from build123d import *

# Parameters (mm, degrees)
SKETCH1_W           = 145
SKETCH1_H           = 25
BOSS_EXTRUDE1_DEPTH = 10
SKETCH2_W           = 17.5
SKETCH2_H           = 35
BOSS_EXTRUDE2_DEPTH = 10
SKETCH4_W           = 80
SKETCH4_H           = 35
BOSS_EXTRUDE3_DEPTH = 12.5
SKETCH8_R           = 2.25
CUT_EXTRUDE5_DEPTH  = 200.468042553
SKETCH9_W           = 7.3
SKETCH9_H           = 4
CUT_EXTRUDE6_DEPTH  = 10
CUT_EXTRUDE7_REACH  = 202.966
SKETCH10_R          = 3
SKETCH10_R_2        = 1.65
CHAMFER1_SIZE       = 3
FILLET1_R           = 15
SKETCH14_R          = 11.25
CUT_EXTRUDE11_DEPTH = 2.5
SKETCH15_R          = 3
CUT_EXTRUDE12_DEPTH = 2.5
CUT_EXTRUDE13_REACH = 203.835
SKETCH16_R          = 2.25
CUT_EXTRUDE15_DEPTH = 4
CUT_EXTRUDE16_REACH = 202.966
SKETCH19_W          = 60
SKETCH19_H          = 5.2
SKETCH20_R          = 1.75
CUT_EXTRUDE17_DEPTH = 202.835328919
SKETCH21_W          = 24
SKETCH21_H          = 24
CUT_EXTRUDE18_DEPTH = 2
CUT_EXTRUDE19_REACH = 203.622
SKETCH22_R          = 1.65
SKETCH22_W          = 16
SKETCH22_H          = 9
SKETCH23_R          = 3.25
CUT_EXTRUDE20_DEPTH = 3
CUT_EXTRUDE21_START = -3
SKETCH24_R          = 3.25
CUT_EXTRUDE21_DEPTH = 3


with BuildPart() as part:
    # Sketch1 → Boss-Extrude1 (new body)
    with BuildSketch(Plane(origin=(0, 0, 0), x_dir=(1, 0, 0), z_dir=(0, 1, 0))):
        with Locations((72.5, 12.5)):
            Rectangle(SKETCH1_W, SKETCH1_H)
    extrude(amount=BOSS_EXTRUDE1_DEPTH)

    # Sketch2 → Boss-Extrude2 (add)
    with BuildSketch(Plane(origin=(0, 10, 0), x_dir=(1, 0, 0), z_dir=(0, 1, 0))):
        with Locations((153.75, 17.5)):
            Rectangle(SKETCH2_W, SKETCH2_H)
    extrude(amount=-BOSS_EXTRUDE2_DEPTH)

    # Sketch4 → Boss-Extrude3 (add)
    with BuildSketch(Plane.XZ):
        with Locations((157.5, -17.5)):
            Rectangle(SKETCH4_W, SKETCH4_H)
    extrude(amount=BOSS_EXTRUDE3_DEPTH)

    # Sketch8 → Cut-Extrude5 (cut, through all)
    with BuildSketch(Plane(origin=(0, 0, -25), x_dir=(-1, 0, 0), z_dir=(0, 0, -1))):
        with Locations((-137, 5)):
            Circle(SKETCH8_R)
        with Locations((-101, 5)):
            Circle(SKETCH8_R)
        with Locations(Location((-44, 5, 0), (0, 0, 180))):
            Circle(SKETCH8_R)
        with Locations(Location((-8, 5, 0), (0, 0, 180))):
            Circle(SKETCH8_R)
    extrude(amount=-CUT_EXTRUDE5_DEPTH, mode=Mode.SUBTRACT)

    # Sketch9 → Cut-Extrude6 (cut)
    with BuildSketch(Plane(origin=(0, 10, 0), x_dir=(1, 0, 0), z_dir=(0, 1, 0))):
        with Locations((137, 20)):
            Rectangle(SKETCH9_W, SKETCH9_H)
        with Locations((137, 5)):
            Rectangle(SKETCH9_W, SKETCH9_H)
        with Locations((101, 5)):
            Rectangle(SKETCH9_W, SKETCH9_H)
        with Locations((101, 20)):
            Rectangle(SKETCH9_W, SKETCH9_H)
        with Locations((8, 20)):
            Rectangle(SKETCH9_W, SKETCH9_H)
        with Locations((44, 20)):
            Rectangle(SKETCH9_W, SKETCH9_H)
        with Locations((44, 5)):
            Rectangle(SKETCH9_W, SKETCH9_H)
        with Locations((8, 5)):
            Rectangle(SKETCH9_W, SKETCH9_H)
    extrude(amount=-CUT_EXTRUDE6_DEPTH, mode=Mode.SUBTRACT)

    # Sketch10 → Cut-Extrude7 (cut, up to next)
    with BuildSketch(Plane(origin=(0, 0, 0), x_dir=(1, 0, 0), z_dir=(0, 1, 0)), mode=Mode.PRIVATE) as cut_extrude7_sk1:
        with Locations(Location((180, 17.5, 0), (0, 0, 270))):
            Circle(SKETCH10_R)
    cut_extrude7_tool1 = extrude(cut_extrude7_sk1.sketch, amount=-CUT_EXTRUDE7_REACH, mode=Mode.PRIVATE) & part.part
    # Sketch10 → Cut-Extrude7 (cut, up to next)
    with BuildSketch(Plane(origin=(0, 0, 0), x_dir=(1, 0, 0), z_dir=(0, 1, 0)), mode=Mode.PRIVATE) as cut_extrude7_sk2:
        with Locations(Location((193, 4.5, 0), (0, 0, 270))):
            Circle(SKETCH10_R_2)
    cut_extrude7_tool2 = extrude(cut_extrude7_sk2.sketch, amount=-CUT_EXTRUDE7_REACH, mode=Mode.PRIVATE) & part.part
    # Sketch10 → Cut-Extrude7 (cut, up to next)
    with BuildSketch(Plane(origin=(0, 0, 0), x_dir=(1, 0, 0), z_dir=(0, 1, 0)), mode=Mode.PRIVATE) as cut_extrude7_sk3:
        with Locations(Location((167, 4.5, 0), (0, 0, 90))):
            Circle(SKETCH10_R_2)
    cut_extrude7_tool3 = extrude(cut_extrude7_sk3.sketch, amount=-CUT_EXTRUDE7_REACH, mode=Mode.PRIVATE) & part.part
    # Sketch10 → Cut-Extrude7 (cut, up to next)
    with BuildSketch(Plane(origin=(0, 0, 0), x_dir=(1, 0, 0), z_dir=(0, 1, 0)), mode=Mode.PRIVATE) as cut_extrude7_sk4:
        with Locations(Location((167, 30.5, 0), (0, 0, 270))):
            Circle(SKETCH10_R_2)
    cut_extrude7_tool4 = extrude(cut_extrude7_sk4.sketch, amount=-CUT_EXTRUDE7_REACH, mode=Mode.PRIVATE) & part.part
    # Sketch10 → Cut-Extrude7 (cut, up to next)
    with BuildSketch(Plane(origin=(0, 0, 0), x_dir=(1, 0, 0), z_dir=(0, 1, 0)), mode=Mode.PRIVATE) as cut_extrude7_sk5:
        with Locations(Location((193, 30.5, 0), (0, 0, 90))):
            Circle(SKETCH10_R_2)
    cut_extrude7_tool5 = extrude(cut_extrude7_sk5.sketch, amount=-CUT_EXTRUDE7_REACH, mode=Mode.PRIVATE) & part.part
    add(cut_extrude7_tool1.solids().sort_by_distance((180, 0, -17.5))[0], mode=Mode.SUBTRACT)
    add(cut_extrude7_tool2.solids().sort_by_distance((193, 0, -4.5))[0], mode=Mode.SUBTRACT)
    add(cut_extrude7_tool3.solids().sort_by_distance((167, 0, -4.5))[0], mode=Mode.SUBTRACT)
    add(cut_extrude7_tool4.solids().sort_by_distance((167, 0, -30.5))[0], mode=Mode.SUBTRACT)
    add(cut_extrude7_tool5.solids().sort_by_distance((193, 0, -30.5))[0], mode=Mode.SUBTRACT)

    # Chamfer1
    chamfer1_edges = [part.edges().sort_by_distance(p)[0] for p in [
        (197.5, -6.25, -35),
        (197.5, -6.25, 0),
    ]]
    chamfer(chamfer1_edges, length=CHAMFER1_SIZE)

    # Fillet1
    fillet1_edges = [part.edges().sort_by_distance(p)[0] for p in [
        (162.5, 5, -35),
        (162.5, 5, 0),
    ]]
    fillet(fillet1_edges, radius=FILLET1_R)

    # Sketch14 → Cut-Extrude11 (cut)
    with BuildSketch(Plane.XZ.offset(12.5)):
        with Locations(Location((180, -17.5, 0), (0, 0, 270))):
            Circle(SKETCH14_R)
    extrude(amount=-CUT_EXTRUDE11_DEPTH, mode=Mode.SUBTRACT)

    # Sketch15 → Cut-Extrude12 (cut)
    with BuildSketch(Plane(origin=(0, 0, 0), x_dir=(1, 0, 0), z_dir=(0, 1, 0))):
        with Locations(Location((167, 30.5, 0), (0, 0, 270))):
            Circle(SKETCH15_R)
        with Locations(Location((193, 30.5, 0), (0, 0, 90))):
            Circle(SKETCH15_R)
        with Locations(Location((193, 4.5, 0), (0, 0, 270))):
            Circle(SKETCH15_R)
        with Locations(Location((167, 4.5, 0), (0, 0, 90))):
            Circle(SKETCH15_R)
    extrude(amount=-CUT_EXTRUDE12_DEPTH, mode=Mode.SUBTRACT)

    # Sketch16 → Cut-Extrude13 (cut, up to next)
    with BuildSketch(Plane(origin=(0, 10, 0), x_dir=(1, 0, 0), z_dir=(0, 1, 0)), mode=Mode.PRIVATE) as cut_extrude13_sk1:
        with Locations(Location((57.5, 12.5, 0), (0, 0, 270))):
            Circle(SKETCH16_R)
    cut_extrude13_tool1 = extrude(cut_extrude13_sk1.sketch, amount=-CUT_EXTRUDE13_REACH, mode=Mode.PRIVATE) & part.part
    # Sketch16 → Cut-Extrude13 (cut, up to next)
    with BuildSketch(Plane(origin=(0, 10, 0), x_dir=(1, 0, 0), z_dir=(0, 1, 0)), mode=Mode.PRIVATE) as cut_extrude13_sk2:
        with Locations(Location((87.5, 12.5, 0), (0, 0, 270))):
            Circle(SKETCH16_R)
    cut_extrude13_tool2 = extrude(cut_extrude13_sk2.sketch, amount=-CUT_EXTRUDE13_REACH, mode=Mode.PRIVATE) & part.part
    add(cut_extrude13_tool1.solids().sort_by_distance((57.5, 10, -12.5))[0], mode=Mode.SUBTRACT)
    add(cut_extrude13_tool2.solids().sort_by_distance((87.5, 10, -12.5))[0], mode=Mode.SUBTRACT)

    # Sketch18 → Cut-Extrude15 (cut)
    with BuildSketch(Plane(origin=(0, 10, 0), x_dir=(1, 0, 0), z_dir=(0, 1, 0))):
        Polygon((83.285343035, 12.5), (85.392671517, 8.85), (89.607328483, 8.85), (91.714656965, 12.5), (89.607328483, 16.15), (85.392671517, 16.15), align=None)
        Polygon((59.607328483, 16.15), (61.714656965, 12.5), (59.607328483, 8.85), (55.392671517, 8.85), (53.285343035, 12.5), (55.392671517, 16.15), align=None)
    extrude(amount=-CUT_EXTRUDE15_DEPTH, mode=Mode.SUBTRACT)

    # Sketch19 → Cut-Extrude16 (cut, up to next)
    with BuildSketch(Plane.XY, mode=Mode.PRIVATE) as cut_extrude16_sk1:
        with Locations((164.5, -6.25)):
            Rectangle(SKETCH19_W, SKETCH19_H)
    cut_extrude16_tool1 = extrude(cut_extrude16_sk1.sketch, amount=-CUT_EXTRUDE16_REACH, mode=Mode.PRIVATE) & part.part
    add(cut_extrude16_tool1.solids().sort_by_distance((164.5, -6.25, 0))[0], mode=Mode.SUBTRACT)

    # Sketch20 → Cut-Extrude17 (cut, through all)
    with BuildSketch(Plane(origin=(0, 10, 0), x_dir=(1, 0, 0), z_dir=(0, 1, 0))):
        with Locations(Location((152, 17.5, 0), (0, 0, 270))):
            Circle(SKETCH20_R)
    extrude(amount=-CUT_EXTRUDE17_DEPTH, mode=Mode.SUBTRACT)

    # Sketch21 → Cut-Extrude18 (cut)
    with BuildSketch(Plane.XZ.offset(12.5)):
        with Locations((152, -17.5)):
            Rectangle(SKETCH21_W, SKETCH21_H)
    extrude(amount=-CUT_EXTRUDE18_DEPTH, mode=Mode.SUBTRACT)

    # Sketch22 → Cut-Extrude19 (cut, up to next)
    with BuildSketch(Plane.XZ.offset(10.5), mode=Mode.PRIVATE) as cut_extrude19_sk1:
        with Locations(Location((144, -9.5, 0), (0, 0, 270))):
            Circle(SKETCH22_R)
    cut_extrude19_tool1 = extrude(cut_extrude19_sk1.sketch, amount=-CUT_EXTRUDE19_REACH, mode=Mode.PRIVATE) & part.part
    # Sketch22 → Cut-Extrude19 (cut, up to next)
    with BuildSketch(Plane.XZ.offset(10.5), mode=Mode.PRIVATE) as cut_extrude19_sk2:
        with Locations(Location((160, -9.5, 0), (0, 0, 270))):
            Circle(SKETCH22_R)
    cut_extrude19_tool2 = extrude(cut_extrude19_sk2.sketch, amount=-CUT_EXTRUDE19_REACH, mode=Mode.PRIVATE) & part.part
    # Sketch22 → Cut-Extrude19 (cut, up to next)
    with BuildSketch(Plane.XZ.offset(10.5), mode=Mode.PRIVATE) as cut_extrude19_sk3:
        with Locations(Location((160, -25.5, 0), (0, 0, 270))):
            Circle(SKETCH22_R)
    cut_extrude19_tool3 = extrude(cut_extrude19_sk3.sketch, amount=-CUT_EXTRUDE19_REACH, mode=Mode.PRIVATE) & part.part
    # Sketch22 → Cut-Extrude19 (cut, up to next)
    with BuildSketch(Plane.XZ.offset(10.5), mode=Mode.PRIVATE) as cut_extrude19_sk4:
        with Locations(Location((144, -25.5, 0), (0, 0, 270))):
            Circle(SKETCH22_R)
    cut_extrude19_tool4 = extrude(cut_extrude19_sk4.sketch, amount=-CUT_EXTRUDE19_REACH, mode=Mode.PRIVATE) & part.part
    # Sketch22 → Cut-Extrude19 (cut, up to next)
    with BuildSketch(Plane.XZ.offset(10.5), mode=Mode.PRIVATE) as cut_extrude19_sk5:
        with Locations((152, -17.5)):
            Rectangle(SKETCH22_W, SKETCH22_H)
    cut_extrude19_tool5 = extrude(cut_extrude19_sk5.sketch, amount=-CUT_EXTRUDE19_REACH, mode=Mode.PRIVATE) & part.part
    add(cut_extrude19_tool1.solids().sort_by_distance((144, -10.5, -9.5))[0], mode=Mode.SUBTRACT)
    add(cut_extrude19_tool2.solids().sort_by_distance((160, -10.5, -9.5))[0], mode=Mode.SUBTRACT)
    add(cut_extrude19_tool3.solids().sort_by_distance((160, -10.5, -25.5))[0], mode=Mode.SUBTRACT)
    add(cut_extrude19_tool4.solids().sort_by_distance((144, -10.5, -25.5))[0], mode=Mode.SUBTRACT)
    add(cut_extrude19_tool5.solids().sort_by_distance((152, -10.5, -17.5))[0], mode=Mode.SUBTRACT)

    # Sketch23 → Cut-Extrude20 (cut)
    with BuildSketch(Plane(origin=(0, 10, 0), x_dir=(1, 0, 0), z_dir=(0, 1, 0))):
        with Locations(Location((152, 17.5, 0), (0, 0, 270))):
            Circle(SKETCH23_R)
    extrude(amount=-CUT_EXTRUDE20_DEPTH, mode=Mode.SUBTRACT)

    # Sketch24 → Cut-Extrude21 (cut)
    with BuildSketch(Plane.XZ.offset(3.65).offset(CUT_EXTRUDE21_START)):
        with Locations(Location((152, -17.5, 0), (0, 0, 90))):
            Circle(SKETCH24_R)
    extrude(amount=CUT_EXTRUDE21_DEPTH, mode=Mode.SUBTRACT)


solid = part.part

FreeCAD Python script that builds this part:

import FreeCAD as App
import Part
import Sketcher

V = App.Vector
Q = App.Units.Quantity


def edges_at(feature, points):
    """Names of the edges that pass closest to the given points."""
    edges = feature.Shape.Edges
    near = lambda p: min(range(len(edges)), key=lambda i: edges[i].distToShape(Part.Vertex(*p))[0])
    return sorted({f"Edge{near(p) + 1}" for p in points})


def add_polygon(sketch, points):
    """Adds a closed chain of lines whose ends are joined by coincident constraints."""
    first, n = sketch.GeometryCount, len(points)
    for a, b in zip(points, points[1:] + points[:1]):
        sketch.addGeometry(Part.LineSegment(App.Vector(*a, 0), App.Vector(*b, 0)), False)
    for i in range(n):
        sketch.addConstraint(Sketcher.Constraint("Coincident", first + i, 2, first + (i + 1) % n, 1))

doc = App.newDocument("Part")
body = doc.addObject("PartDesign::Body", "Body")

# Sketch on XZ plane
sketch1 = doc.addObject("Sketcher::SketchObject", "Sketch")
body.addObject(sketch1)
sketch1.AttachmentSupport = (doc.XZ_Plane, [""])
sketch1.MapMode = "FlatFace"
add_polygon(sketch1, [(0, -25), (0, 0), (145, 0), (145, -25)])  # lines 0-3
sketch1.addConstraint(Sketcher.Constraint("Vertical", 0))
sketch1.addConstraint(Sketcher.Constraint("Horizontal", 1))
sketch1.addConstraint(Sketcher.Constraint("Vertical", 2))
sketch1.addConstraint(Sketcher.Constraint("Horizontal", 3))
sketch1.addConstraint(Sketcher.Constraint("Coincident", 0, 2, -1, 1))
sketch1.addConstraint(Sketcher.Constraint("DistanceX", 1, 1, 1, 2, Q("145 mm")))
sketch1.addConstraint(Sketcher.Constraint("DistanceY", 0, 1, 0, 2, Q("25 mm")))
pad1 = doc.addObject("PartDesign::Pad", "Pad")
body.addObject(pad1)
pad1.Profile = sketch1
pad1.Length = 10
pad1.Reversed = True

# Sketch on XZ plane
sketch2 = doc.addObject("Sketcher::SketchObject", "Sketch001")
body.addObject(sketch2)
sketch2.AttachmentSupport = (doc.XZ_Plane, [""])
sketch2.MapMode = "FlatFace"
sketch2.AttachmentOffset = App.Placement(V(0, 0, -10), App.Rotation())
add_polygon(sketch2, [(145, -35), (145, 0), (162, 0), (162, -35)])  # lines 0-3
sketch2.addConstraint(Sketcher.Constraint("Vertical", 0))
sketch2.addConstraint(Sketcher.Constraint("Horizontal", 1))
sketch2.addConstraint(Sketcher.Constraint("Vertical", 2))
sketch2.addConstraint(Sketcher.Constraint("Horizontal", 3))
sketch2.addConstraint(Sketcher.Constraint("PointOnObject", 0, 2, -1))
sketch2.addConstraint(Sketcher.Constraint("DistanceY", 0, 1, 0, 2, Q("35 mm")))
sketch2.addConstraint(Sketcher.Constraint("DistanceX", 1, 1, 1, 2, Q("17.5 mm")))
sketch2.addConstraint(Sketcher.Constraint("DistanceX", -1, 1, 0, 2, Q("145 mm")))
pad2 = doc.addObject("PartDesign::Pad", "Pad001")
body.addObject(pad2)
pad2.Profile = sketch2
pad2.Length = 10

# Sketch on XZ plane
sketch3 = doc.addObject("Sketcher::SketchObject", "Sketch002")
body.addObject(sketch3)
sketch3.AttachmentSupport = (doc.XZ_Plane, [""])
sketch3.MapMode = "FlatFace"
add_polygon(sketch3, [(118, 0), (118, -35), (198, -35), (198, 0)])  # lines 0-3
sketch3.addConstraint(Sketcher.Constraint("Vertical", 0))
sketch3.addConstraint(Sketcher.Constraint("Horizontal", 1))
sketch3.addConstraint(Sketcher.Constraint("Vertical", 2))
sketch3.addConstraint(Sketcher.Constraint("Horizontal", 3))
sketch3.addConstraint(Sketcher.Constraint("PointOnObject", 2, 2, -1))
sketch3.addConstraint(Sketcher.Constraint("DistanceX", 1, 1, 1, 2, Q("80 mm")))
sketch3.addConstraint(Sketcher.Constraint("DistanceY", 0, 2, 0, 1, Q("35 mm")))
sketch3.addConstraint(Sketcher.Constraint("DistanceX", -1, 1, 0, 2, Q("117.5 mm")))
pad3 = doc.addObject("PartDesign::Pad", "Pad002")
body.addObject(pad3)
pad3.Profile = sketch3
pad3.Length = 12.5

# Sketch on XY plane
sketch4 = doc.addObject("Sketcher::SketchObject", "Sketch003")
body.addObject(sketch4)
sketch4.AttachmentSupport = (doc.XY_Plane, [""])
sketch4.MapMode = "FlatFace"
sketch4.AttachmentOffset = App.Placement(V(0, 0, -25), App.Rotation())
sketch4.addGeometry(Part.Circle(V(137, 5, 0), V(0, 0, 1), 2.2), False)
sketch4.addGeometry(Part.Circle(V(101, 5, 0), V(0, 0, 1), 2.2), False)
sketch4.addGeometry(Part.Circle(V(44, 5, 0), V(0, 0, 1), 2.2), False)
sketch4.addGeometry(Part.Circle(V(8, 5, 0), V(0, 0, 1), 2.2), False)
sketch4.addConstraint(Sketcher.Constraint("Equal", 0, 1))
sketch4.addConstraint(Sketcher.Constraint("Equal", 1, 2))
sketch4.addConstraint(Sketcher.Constraint("Equal", 2, 3))
sketch4.addConstraint(Sketcher.Constraint("Horizontal", 0, 3, 1, 3))
sketch4.addConstraint(Sketcher.Constraint("Horizontal", 1, 3, 2, 3))
sketch4.addConstraint(Sketcher.Constraint("Horizontal", 2, 3, 3, 3))
sketch4.addConstraint(Sketcher.Constraint("Diameter", 0, Q("4.5 mm")))
sketch4.addConstraint(Sketcher.Constraint("DistanceX", -1, 1, 0, 3, Q("137 mm")))
sketch4.addConstraint(Sketcher.Constraint("DistanceY", -1, 1, 0, 3, Q("5 mm")))
sketch4.addConstraint(Sketcher.Constraint("DistanceX", -1, 1, 1, 3, Q("101 mm")))
sketch4.addConstraint(Sketcher.Constraint("DistanceX", -1, 1, 2, 3, Q("44 mm")))
sketch4.addConstraint(Sketcher.Constraint("DistanceX", -1, 1, 3, 3, Q("8 mm")))
pocket1 = doc.addObject("PartDesign::Pocket", "Pocket")
body.addObject(pocket1)
pocket1.Profile = sketch4
pocket1.Type = "ThroughAll"
pocket1.Reversed = True

# Sketch on XZ plane
sketch5 = doc.addObject("Sketcher::SketchObject", "Sketch004")
body.addObject(sketch5)
sketch5.AttachmentSupport = (doc.XZ_Plane, [""])
sketch5.MapMode = "FlatFace"
sketch5.AttachmentOffset = App.Placement(V(0, 0, -10), App.Rotation())
add_polygon(sketch5, [(133.3, -22), (133.3, -18), (140.7, -18), (140.7, -22)])  # lines 0-3
add_polygon(sketch5, [(133.3, -7), (133.3, -3), (140.7, -3), (140.7, -7)])  # lines 4-7
add_polygon(sketch5, [(97.3, -7), (97.3, -3), (104.7, -3), (104.7, -7)])  # lines 8-11
add_polygon(sketch5, [(97.3, -22), (97.3, -18), (104.7, -18), (104.7, -22)])  # lines 12-15
add_polygon(sketch5, [(4.3, -22), (4.3, -18), (11.7, -18), (11.7, -22)])  # lines 16-19
add_polygon(sketch5, [(40.4, -22), (40.4, -18), (47.6, -18), (47.6, -22)])  # lines 20-23
add_polygon(sketch5, [(40.4, -7), (40.4, -3), (47.6, -3), (47.6, -7)])  # lines 24-27
add_polygon(sketch5, [(4.3, -7), (4.3, -3), (11.7, -3), (11.7, -7)])  # lines 28-31
sketch5.addConstraint(Sketcher.Constraint("Vertical", 0))
sketch5.addConstraint(Sketcher.Constraint("Horizontal", 1))
sketch5.addConstraint(Sketcher.Constraint("Vertical", 2))
sketch5.addConstraint(Sketcher.Constraint("Horizontal", 3))
sketch5.addConstraint(Sketcher.Constraint("Vertical", 4))
sketch5.addConstraint(Sketcher.Constraint("Horizontal", 5))
sketch5.addConstraint(Sketcher.Constraint("Vertical", 6))
sketch5.addConstraint(Sketcher.Constraint("Horizontal", 7))
sketch5.addConstraint(Sketcher.Constraint("Vertical", 8))
sketch5.addConstraint(Sketcher.Constraint("Horizontal", 9))
sketch5.addConstraint(Sketcher.Constraint("Vertical", 10))
sketch5.addConstraint(Sketcher.Constraint("Horizontal", 11))
sketch5.addConstraint(Sketcher.Constraint("Vertical", 12))
sketch5.addConstraint(Sketcher.Constraint("Horizontal", 13))
sketch5.addConstraint(Sketcher.Constraint("Vertical", 14))
sketch5.addConstraint(Sketcher.Constraint("Horizontal", 15))
sketch5.addConstraint(Sketcher.Constraint("Vertical", 16))
sketch5.addConstraint(Sketcher.Constraint("Horizontal", 17))
sketch5.addConstraint(Sketcher.Constraint("Vertical", 18))
sketch5.addConstraint(Sketcher.Constraint("Horizontal", 19))
sketch5.addConstraint(Sketcher.Constraint("Vertical", 20))
sketch5.addConstraint(Sketcher.Constraint("Horizontal", 21))
sketch5.addConstraint(Sketcher.Constraint("Vertical", 22))
sketch5.addConstraint(Sketcher.Constraint("Horizontal", 23))
sketch5.addConstraint(Sketcher.Constraint("Vertical", 24))
sketch5.addConstraint(Sketcher.Constraint("Horizontal", 25))
sketch5.addConstraint(Sketcher.Constraint("Vertical", 26))
sketch5.addConstraint(Sketcher.Constraint("Horizontal", 27))
sketch5.addConstraint(Sketcher.Constraint("Vertical", 28))
sketch5.addConstraint(Sketcher.Constraint("Horizontal", 29))
sketch5.addConstraint(Sketcher.Constraint("Vertical", 30))
sketch5.addConstraint(Sketcher.Constraint("Horizontal", 31))
sketch5.addConstraint(Sketcher.Constraint("Horizontal", 5, 2, 8, 2))
sketch5.addConstraint(Sketcher.Constraint("Horizontal", 7, 2, 10, 2))
sketch5.addConstraint(Sketcher.Constraint("Horizontal", 1, 2, 12, 2))
sketch5.addConstraint(Sketcher.Constraint("Horizontal", 3, 2, 14, 2))
sketch5.addConstraint(Sketcher.Constraint("Horizontal", 13, 2, 16, 2))
sketch5.addConstraint(Sketcher.Constraint("Horizontal", 15, 2, 18, 2))
sketch5.addConstraint(Sketcher.Constraint("Horizontal", 17, 2, 20, 2))
sketch5.addConstraint(Sketcher.Constraint("Horizontal", 19, 2, 22, 2))
sketch5.addConstraint(Sketcher.Constraint("Horizontal", 9, 2, 24, 2))
sketch5.addConstraint(Sketcher.Constraint("Horizontal", 11, 2, 26, 2))
sketch5.addConstraint(Sketcher.Constraint("Horizontal", 25, 2, 28, 2))
sketch5.addConstraint(Sketcher.Constraint("Horizontal", 27, 2, 30, 2))
sketch5.addConstraint(Sketcher.Constraint("Vertical", 3, 2, 4, 2))
sketch5.addConstraint(Sketcher.Constraint("Vertical", 2, 2, 5, 2))
sketch5.addConstraint(Sketcher.Constraint("Vertical", 11, 2, 12, 2))
sketch5.addConstraint(Sketcher.Constraint("Vertical", 10, 2, 13, 2))
sketch5.addConstraint(Sketcher.Constraint("Vertical", 23, 2, 24, 2))
sketch5.addConstraint(Sketcher.Constraint("Vertical", 22, 2, 25, 2))
sketch5.addConstraint(Sketcher.Constraint("Vertical", 19, 2, 28, 2))
sketch5.addConstraint(Sketcher.Constraint("Vertical", 18, 2, 29, 2))
sketch5.addConstraint(Sketcher.Constraint("Equal", 7, 9))
sketch5.addConstraint(Sketcher.Constraint("Equal", 15, 17))
sketch5.addConstraint(Sketcher.Constraint("Equal", 19, 21))
sketch5.addConstraint(Sketcher.Constraint("Equal", 2, 4))
sketch5.addConstraint(Sketcher.Constraint("DistanceY", 0, 1, 0, 2, Q("4 mm")))
sketch5.addConstraint(Sketcher.Constraint("DistanceX", 1, 1, 1, 2, Q("7.3 mm")))
sketch5.addConstraint(Sketcher.Constraint("DistanceY", 0, 2, -1, 1, Q("18 mm")))
sketch5.addConstraint(Sketcher.Constraint("DistanceY", 4, 2, -1, 1, Q("3 mm")))
sketch5.addConstraint(Sketcher.Constraint("DistanceX", 8, 2, 4, 2, Q("36 mm")))
sketch5.addConstraint(Sketcher.Constraint("DistanceX", 16, 2, 12, 2, Q("93 mm")))
sketch5.addConstraint(Sketcher.Constraint("DistanceX", 16, 2, 20, 2, Q("36 mm")))
sketch5.addConstraint(Sketcher.Constraint("DistanceX", -1, 1, 0, 2, Q("133.35 mm")))
pocket2 = doc.addObject("PartDesign::Pocket", "Pocket001")
body.addObject(pocket2)
pocket2.Profile = sketch5
pocket2.Length = 10
pocket2.Reversed = True

# Sketch on XZ plane
sketch6 = doc.addObject("Sketcher::SketchObject", "Sketch005")
body.addObject(sketch6)
sketch6.AttachmentSupport = (doc.XZ_Plane, [""])
sketch6.MapMode = "FlatFace"
sketch6.addGeometry(Part.Circle(V(180, -17.5, 0), V(0, 0, 1), 3), False)
sketch6.addConstraint(Sketcher.Constraint("Diameter", 0, Q("6 mm")))
sketch6.addConstraint(Sketcher.Constraint("DistanceX", -1, 1, 0, 3, Q("180 mm")))
sketch6.addConstraint(Sketcher.Constraint("DistanceY", 0, 3, -1, 1, Q("17.5 mm")))
pocket3 = doc.addObject("PartDesign::Pocket", "Pocket002")
body.addObject(pocket3)
pocket3.Profile = sketch6
pocket3.Type = "UpToFirst"
pocket3.Reversed = True

# Sketch on XZ plane
sketch7 = doc.addObject("Sketcher::SketchObject", "Sketch006")
body.addObject(sketch7)
sketch7.AttachmentSupport = (doc.XZ_Plane, [""])
sketch7.MapMode = "FlatFace"
sketch7.addGeometry(Part.Circle(V(193, -4.5, 0), V(0, 0, 1), 1.6), False)
sketch7.addConstraint(Sketcher.Constraint("Diameter", 0, Q("3.3 mm")))
sketch7.addConstraint(Sketcher.Constraint("DistanceX", -1, 1, 0, 3, Q("193 mm")))
sketch7.addConstraint(Sketcher.Constraint("DistanceY", 0, 3, -1, 1, Q("4.5 mm")))
pocket4 = doc.addObject("PartDesign::Pocket", "Pocket003")
body.addObject(pocket4)
pocket4.Profile = sketch7
pocket4.Type = "UpToFirst"
pocket4.Reversed = True

# Sketch on XZ plane
sketch8 = doc.addObject("Sketcher::SketchObject", "Sketch007")
body.addObject(sketch8)
sketch8.AttachmentSupport = (doc.XZ_Plane, [""])
sketch8.MapMode = "FlatFace"
sketch8.addGeometry(Part.Circle(V(167, -4.5, 0), V(0, 0, 1), 1.6), False)
sketch8.addConstraint(Sketcher.Constraint("Diameter", 0, Q("3.3 mm")))
sketch8.addConstraint(Sketcher.Constraint("DistanceX", -1, 1, 0, 3, Q("167 mm")))
sketch8.addConstraint(Sketcher.Constraint("DistanceY", 0, 3, -1, 1, Q("4.5 mm")))
pocket5 = doc.addObject("PartDesign::Pocket", "Pocket004")
body.addObject(pocket5)
pocket5.Profile = sketch8
pocket5.Type = "UpToFirst"
pocket5.Reversed = True

# Sketch on XZ plane
sketch9 = doc.addObject("Sketcher::SketchObject", "Sketch008")
body.addObject(sketch9)
sketch9.AttachmentSupport = (doc.XZ_Plane, [""])
sketch9.MapMode = "FlatFace"
sketch9.addGeometry(Part.Circle(V(167, -30.5, 0), V(0, 0, 1), 1.6), False)
sketch9.addConstraint(Sketcher.Constraint("Diameter", 0, Q("3.3 mm")))
sketch9.addConstraint(Sketcher.Constraint("DistanceX", -1, 1, 0, 3, Q("167 mm")))
sketch9.addConstraint(Sketcher.Constraint("DistanceY", 0, 3, -1, 1, Q("30.5 mm")))
pocket6 = doc.addObject("PartDesign::Pocket", "Pocket005")
body.addObject(pocket6)
pocket6.Profile = sketch9
pocket6.Type = "UpToFirst"
pocket6.Reversed = True

# Sketch on XZ plane
sketch10 = doc.addObject("Sketcher::SketchObject", "Sketch009")
body.addObject(sketch10)
sketch10.AttachmentSupport = (doc.XZ_Plane, [""])
sketch10.MapMode = "FlatFace"
sketch10.addGeometry(Part.Circle(V(193, -30.5, 0), V(0, 0, 1), 1.6), False)
sketch10.addConstraint(Sketcher.Constraint("Diameter", 0, Q("3.3 mm")))
sketch10.addConstraint(Sketcher.Constraint("DistanceX", -1, 1, 0, 3, Q("193 mm")))
sketch10.addConstraint(Sketcher.Constraint("DistanceY", 0, 3, -1, 1, Q("30.5 mm")))
pocket7 = doc.addObject("PartDesign::Pocket", "Pocket006")
body.addObject(pocket7)
pocket7.Profile = sketch10
pocket7.Type = "UpToFirst"
pocket7.Reversed = True
doc.recompute()

chamfer = doc.addObject("PartDesign::Chamfer", "Chamfer")
body.addObject(chamfer)
chamfer.Base = (pocket7, edges_at(pocket7, [(197.5, -6.25, -35), (197.5, -6.25, 0)]))
chamfer.Size = 3
doc.recompute()

fillet = doc.addObject("PartDesign::Fillet", "Fillet")
body.addObject(fillet)
fillet.Base = (chamfer, edges_at(chamfer, [(162.5, 5, -35), (162.5, 5, 0)]))
fillet.Radius = 15

# Sketch on XZ plane
sketch11 = doc.addObject("Sketcher::SketchObject", "Sketch010")
body.addObject(sketch11)
sketch11.AttachmentSupport = (doc.XZ_Plane, [""])
sketch11.MapMode = "FlatFace"
sketch11.AttachmentOffset = App.Placement(V(0, 0, 12.5), App.Rotation())
sketch11.addGeometry(Part.Circle(V(180, -18, 0), V(0, 0, 1), 11), False)
sketch11.addConstraint(Sketcher.Constraint("Diameter", 0, Q("22.5 mm")))
sketch11.addConstraint(Sketcher.Constraint("DistanceX", -1, 1, 0, 3, Q("180 mm")))
sketch11.addConstraint(Sketcher.Constraint("DistanceY", 0, 3, -1, 1, Q("17.5 mm")))
pocket8 = doc.addObject("PartDesign::Pocket", "Pocket007")
body.addObject(pocket8)
pocket8.Profile = sketch11
pocket8.Length = 2.5

# Sketch on XZ plane
sketch12 = doc.addObject("Sketcher::SketchObject", "Sketch011")
body.addObject(sketch12)
sketch12.AttachmentSupport = (doc.XZ_Plane, [""])
sketch12.MapMode = "FlatFace"
sketch12.addGeometry(Part.Circle(V(167, -30.5, 0), V(0, 0, 1), 3), False)
sketch12.addGeometry(Part.Circle(V(193, -30.5, 0), V(0, 0, 1), 3), False)
sketch12.addGeometry(Part.Circle(V(193, -4.5, 0), V(0, 0, 1), 3), False)
sketch12.addGeometry(Part.Circle(V(167, -4.5, 0), V(0, 0, 1), 3), False)
sketch12.addConstraint(Sketcher.Constraint("Equal", 0, 1))
sketch12.addConstraint(Sketcher.Constraint("Equal", 1, 2))
sketch12.addConstraint(Sketcher.Constraint("Equal", 2, 3))
sketch12.addConstraint(Sketcher.Constraint("Horizontal", 0, 3, 1, 3))
sketch12.addConstraint(Sketcher.Constraint("Horizontal", 2, 3, 3, 3))
sketch12.addConstraint(Sketcher.Constraint("Vertical", 1, 3, 2, 3))
sketch12.addConstraint(Sketcher.Constraint("Vertical", 0, 3, 3, 3))
sketch12.addConstraint(Sketcher.Constraint("Diameter", 0, Q("6 mm")))
sketch12.addConstraint(Sketcher.Constraint("DistanceX", -1, 1, 0, 3, Q("167 mm")))
sketch12.addConstraint(Sketcher.Constraint("DistanceX", -1, 1, 1, 3, Q("193 mm")))
sketch12.addConstraint(Sketcher.Constraint("DistanceY", 1, 3, 2, 3, Q("26 mm")))
sketch12.addConstraint(Sketcher.Constraint("DistanceY", 0, 3, -1, 1, Q("30.5 mm")))
pocket9 = doc.addObject("PartDesign::Pocket", "Pocket008")
body.addObject(pocket9)
pocket9.Profile = sketch12
pocket9.Length = 2.5
pocket9.Reversed = True

# Sketch on XZ plane
sketch13 = doc.addObject("Sketcher::SketchObject", "Sketch012")
body.addObject(sketch13)
sketch13.AttachmentSupport = (doc.XZ_Plane, [""])
sketch13.MapMode = "FlatFace"
sketch13.AttachmentOffset = App.Placement(V(0, 0, -10), App.Rotation())
sketch13.addGeometry(Part.Circle(V(57.5, -12.5, 0), V(0, 0, 1), 2.2), False)
sketch13.addConstraint(Sketcher.Constraint("Diameter", 0, Q("4.5 mm")))
sketch13.addConstraint(Sketcher.Constraint("DistanceX", -1, 1, 0, 3, Q("57.5 mm")))
sketch13.addConstraint(Sketcher.Constraint("DistanceY", 0, 3, -1, 1, Q("12.5 mm")))
pocket10 = doc.addObject("PartDesign::Pocket", "Pocket009")
body.addObject(pocket10)
pocket10.Profile = sketch13
pocket10.Type = "UpToFirst"
pocket10.Reversed = True

# Sketch on XZ plane
sketch14 = doc.addObject("Sketcher::SketchObject", "Sketch013")
body.addObject(sketch14)
sketch14.AttachmentSupport = (doc.XZ_Plane, [""])
sketch14.MapMode = "FlatFace"
sketch14.AttachmentOffset = App.Placement(V(0, 0, -10), App.Rotation())
sketch14.addGeometry(Part.Circle(V(87.5, -12.5, 0), V(0, 0, 1), 2.2), False)
sketch14.addConstraint(Sketcher.Constraint("Diameter", 0, Q("4.5 mm")))
sketch14.addConstraint(Sketcher.Constraint("DistanceX", -1, 1, 0, 3, Q("87.5 mm")))
sketch14.addConstraint(Sketcher.Constraint("DistanceY", 0, 3, -1, 1, Q("12.5 mm")))
pocket11 = doc.addObject("PartDesign::Pocket", "Pocket010")
body.addObject(pocket11)
pocket11.Profile = sketch14
pocket11.Type = "UpToFirst"
pocket11.Reversed = True

# Sketch on XZ plane
sketch15 = doc.addObject("Sketcher::SketchObject", "Sketch014")
body.addObject(sketch15)
sketch15.AttachmentSupport = (doc.XZ_Plane, [""])
sketch15.MapMode = "FlatFace"
sketch15.AttachmentOffset = App.Placement(V(0, 0, -10), App.Rotation())
add_polygon(sketch15, [(83.3, -12.5), (85.4, -8.8), (89.6, -8.8), (91.7, -12.5), (89.6, -16.1), (85.4, -16.1)])  # lines 0-5
add_polygon(sketch15, [(61.7, -12.5), (59.6, -16.1), (55.4, -16.1), (53.3, -12.5), (55.4, -8.8), (59.6, -8.8)])  # lines 6-11
sketch15.addConstraint(Sketcher.Constraint("Horizontal", 1))
sketch15.addConstraint(Sketcher.Constraint("Horizontal", 4))
sketch15.addConstraint(Sketcher.Constraint("Horizontal", 7))
sketch15.addConstraint(Sketcher.Constraint("Horizontal", 10))
sketch15.addConstraint(Sketcher.Constraint("Parallel", 0, 3))
sketch15.addConstraint(Sketcher.Constraint("Parallel", 2, 5))
sketch15.addConstraint(Sketcher.Constraint("Parallel", 3, 6))
sketch15.addConstraint(Sketcher.Constraint("Parallel", 5, 8))
sketch15.addConstraint(Sketcher.Constraint("Parallel", 6, 9))
sketch15.addConstraint(Sketcher.Constraint("Parallel", 8, 11))
sketch15.addConstraint(Sketcher.Constraint("Horizontal", 2, 2, 5, 2))
sketch15.addConstraint(Sketcher.Constraint("Horizontal", 4, 2, 6, 2))
sketch15.addConstraint(Sketcher.Constraint("Horizontal", 5, 2, 8, 2))
sketch15.addConstraint(Sketcher.Constraint("Horizontal", 1, 2, 9, 2))
sketch15.addConstraint(Sketcher.Constraint("Horizontal", 8, 2, 11, 2))
sketch15.addConstraint(Sketcher.Constraint("Vertical", 1, 2, 3, 2))
sketch15.addConstraint(Sketcher.Constraint("Vertical", 0, 2, 4, 2))
sketch15.addConstraint(Sketcher.Constraint("Equal", 4, 7))
sketch15.addConstraint(Sketcher.Constraint("Angle", 0, Q("60 deg")))
sketch15.addConstraint(Sketcher.Constraint("DistanceX", 6, 2, 3, 2, Q("30 mm")))
sketch15.addConstraint(Sketcher.Constraint("DistanceY", 2, 2, -1, 1, Q("12.5 mm")))
sketch15.addConstraint(Sketcher.Constraint("DistanceY", 3, 2, 1, 2, Q("7.3 mm")))
sketch15.addConstraint(Sketcher.Constraint("DistanceX", 1, 1, 1, 2, Q("4.214657 mm")))
sketch15.addConstraint(Sketcher.Constraint("DistanceX", -1, 1, 0, 2, Q("85.392672 mm")))
pocket12 = doc.addObject("PartDesign::Pocket", "Pocket011")
body.addObject(pocket12)
pocket12.Profile = sketch15
pocket12.Length = 4
pocket12.Reversed = True

# Sketch on XY plane
sketch16 = doc.addObject("Sketcher::SketchObject", "Sketch015")
body.addObject(sketch16)
sketch16.AttachmentSupport = (doc.XY_Plane, [""])
sketch16.MapMode = "FlatFace"
add_polygon(sketch16, [(134, -4), (134, -9), (194, -9), (194, -4)])  # lines 0-3
sketch16.addConstraint(Sketcher.Constraint("Vertical", 0))
sketch16.addConstraint(Sketcher.Constraint("Horizontal", 1))
sketch16.addConstraint(Sketcher.Constraint("Vertical", 2))
sketch16.addConstraint(Sketcher.Constraint("Horizontal", 3))
sketch16.addConstraint(Sketcher.Constraint("DistanceX", 1, 1, 1, 2, Q("60 mm")))
sketch16.addConstraint(Sketcher.Constraint("DistanceY", 0, 2, 0, 1, Q("5.2 mm")))
sketch16.addConstraint(Sketcher.Constraint("DistanceX", -1, 1, 0, 2, Q("134.5 mm")))
sketch16.addConstraint(Sketcher.Constraint("DistanceY", 0, 2, -1, 1, Q("8.85 mm")))
pocket13 = doc.addObject("PartDesign::Pocket", "Pocket012")
body.addObject(pocket13)
pocket13.Profile = sketch16
pocket13.Type = "UpToFirst"

# Sketch on XZ plane
sketch17 = doc.addObject("Sketcher::SketchObject", "Sketch016")
body.addObject(sketch17)
sketch17.AttachmentSupport = (doc.XZ_Plane, [""])
sketch17.MapMode = "FlatFace"
sketch17.AttachmentOffset = App.Placement(V(0, 0, -10), App.Rotation())
sketch17.addGeometry(Part.Circle(V(152, -17.5, 0), V(0, 0, 1), 1.8), False)
sketch17.addConstraint(Sketcher.Constraint("Diameter", 0, Q("3.5 mm")))
sketch17.addConstraint(Sketcher.Constraint("DistanceX", -1, 1, 0, 3, Q("152 mm")))
sketch17.addConstraint(Sketcher.Constraint("DistanceY", 0, 3, -1, 1, Q("17.5 mm")))
pocket14 = doc.addObject("PartDesign::Pocket", "Pocket013")
body.addObject(pocket14)
pocket14.Profile = sketch17
pocket14.Type = "ThroughAll"
pocket14.Reversed = True

# Sketch on XZ plane
sketch18 = doc.addObject("Sketcher::SketchObject", "Sketch017")
body.addObject(sketch18)
sketch18.AttachmentSupport = (doc.XZ_Plane, [""])
sketch18.MapMode = "FlatFace"
sketch18.AttachmentOffset = App.Placement(V(0, 0, 12.5), App.Rotation())
add_polygon(sketch18, [(140, -6), (140, -30), (164, -30), (164, -6)])  # lines 0-3
sketch18.addConstraint(Sketcher.Constraint("Vertical", 0))
sketch18.addConstraint(Sketcher.Constraint("Horizontal", 1))
sketch18.addConstraint(Sketcher.Constraint("Vertical", 2))
sketch18.addConstraint(Sketcher.Constraint("Horizontal", 3))
sketch18.addConstraint(Sketcher.Constraint("Equal", 3, 0))
sketch18.addConstraint(Sketcher.Constraint("DistanceX", 1, 1, 1, 2, Q("24 mm")))
sketch18.addConstraint(Sketcher.Constraint("DistanceX", -1, 1, 0, 2, Q("140 mm")))
sketch18.addConstraint(Sketcher.Constraint("DistanceY", 0, 2, -1, 1, Q("29.5 mm")))
pocket15 = doc.addObject("PartDesign::Pocket", "Pocket014")
body.addObject(pocket15)
pocket15.Profile = sketch18
pocket15.Length = 2

# Sketch on XZ plane
sketch19 = doc.addObject("Sketcher::SketchObject", "Sketch018")
body.addObject(sketch19)
sketch19.AttachmentSupport = (doc.XZ_Plane, [""])
sketch19.MapMode = "FlatFace"
sketch19.AttachmentOffset = App.Placement(V(0, 0, 10.5), App.Rotation())
sketch19.addGeometry(Part.Circle(V(144, -9.5, 0), V(0, 0, 1), 1.6), False)
sketch19.addConstraint(Sketcher.Constraint("Diameter", 0, Q("3.3 mm")))
sketch19.addConstraint(Sketcher.Constraint("DistanceX", -1, 1, 0, 3, Q("144 mm")))
sketch19.addConstraint(Sketcher.Constraint("DistanceY", 0, 3, -1, 1, Q("9.5 mm")))
pocket16 = doc.addObject("PartDesign::Pocket", "Pocket015")
body.addObject(pocket16)
pocket16.Profile = sketch19
pocket16.Type = "UpToFirst"

# Sketch on XZ plane
sketch20 = doc.addObject("Sketcher::SketchObject", "Sketch019")
body.addObject(sketch20)
sketch20.AttachmentSupport = (doc.XZ_Plane, [""])
sketch20.MapMode = "FlatFace"
sketch20.AttachmentOffset = App.Placement(V(0, 0, 10.5), App.Rotation())
sketch20.addGeometry(Part.Circle(V(160, -9.5, 0), V(0, 0, 1), 1.6), False)
sketch20.addConstraint(Sketcher.Constraint("Diameter", 0, Q("3.3 mm")))
sketch20.addConstraint(Sketcher.Constraint("DistanceX", -1, 1, 0, 3, Q("160 mm")))
sketch20.addConstraint(Sketcher.Constraint("DistanceY", 0, 3, -1, 1, Q("9.5 mm")))
pocket17 = doc.addObject("PartDesign::Pocket", "Pocket016")
body.addObject(pocket17)
pocket17.Profile = sketch20
pocket17.Type = "UpToFirst"

# Sketch on XZ plane
sketch21 = doc.addObject("Sketcher::SketchObject", "Sketch020")
body.addObject(sketch21)
sketch21.AttachmentSupport = (doc.XZ_Plane, [""])
sketch21.MapMode = "FlatFace"
sketch21.AttachmentOffset = App.Placement(V(0, 0, 10.5), App.Rotation())
sketch21.addGeometry(Part.Circle(V(160, -25.5, 0), V(0, 0, 1), 1.6), False)
sketch21.addConstraint(Sketcher.Constraint("Diameter", 0, Q("3.3 mm")))
sketch21.addConstraint(Sketcher.Constraint("DistanceX", -1, 1, 0, 3, Q("160 mm")))
sketch21.addConstraint(Sketcher.Constraint("DistanceY", 0, 3, -1, 1, Q("25.5 mm")))
pocket18 = doc.addObject("PartDesign::Pocket", "Pocket017")
body.addObject(pocket18)
pocket18.Profile = sketch21
pocket18.Type = "UpToFirst"

# Sketch on XZ plane
sketch22 = doc.addObject("Sketcher::SketchObject", "Sketch021")
body.addObject(sketch22)
sketch22.AttachmentSupport = (doc.XZ_Plane, [""])
sketch22.MapMode = "FlatFace"
sketch22.AttachmentOffset = App.Placement(V(0, 0, 10.5), App.Rotation())
sketch22.addGeometry(Part.Circle(V(144, -25.5, 0), V(0, 0, 1), 1.6), False)
sketch22.addConstraint(Sketcher.Constraint("Diameter", 0, Q("3.3 mm")))
sketch22.addConstraint(Sketcher.Constraint("DistanceX", -1, 1, 0, 3, Q("144 mm")))
sketch22.addConstraint(Sketcher.Constraint("DistanceY", 0, 3, -1, 1, Q("25.5 mm")))
pocket19 = doc.addObject("PartDesign::Pocket", "Pocket018")
body.addObject(pocket19)
pocket19.Profile = sketch22
pocket19.Type = "UpToFirst"

# Sketch on XZ plane
sketch23 = doc.addObject("Sketcher::SketchObject", "Sketch022")
body.addObject(sketch23)
sketch23.AttachmentSupport = (doc.XZ_Plane, [""])
sketch23.MapMode = "FlatFace"
sketch23.AttachmentOffset = App.Placement(V(0, 0, 10.5), App.Rotation())
add_polygon(sketch23, [(144, -13), (144, -22), (160, -22), (160, -13)])  # lines 0-3
sketch23.addConstraint(Sketcher.Constraint("Vertical", 0))
sketch23.addConstraint(Sketcher.Constraint("Horizontal", 1))
sketch23.addConstraint(Sketcher.Constraint("Vertical", 2))
sketch23.addConstraint(Sketcher.Constraint("Horizontal", 3))
sketch23.addConstraint(Sketcher.Constraint("DistanceX", 1, 1, 1, 2, Q("16 mm")))
sketch23.addConstraint(Sketcher.Constraint("DistanceY", 0, 2, 0, 1, Q("9 mm")))
sketch23.addConstraint(Sketcher.Constraint("DistanceX", -1, 1, 0, 2, Q("144 mm")))
sketch23.addConstraint(Sketcher.Constraint("DistanceY", 0, 2, -1, 1, Q("22 mm")))
pocket20 = doc.addObject("PartDesign::Pocket", "Pocket019")
body.addObject(pocket20)
pocket20.Profile = sketch23
pocket20.Length = 1.65

# Sketch on XZ plane
sketch24 = doc.addObject("Sketcher::SketchObject", "Sketch023")
body.addObject(sketch24)
sketch24.AttachmentSupport = (doc.XZ_Plane, [""])
sketch24.MapMode = "FlatFace"
sketch24.AttachmentOffset = App.Placement(V(0, 0, -10), App.Rotation())
sketch24.addGeometry(Part.Circle(V(152, -17.5, 0), V(0, 0, 1), 3.2), False)
sketch24.addConstraint(Sketcher.Constraint("Diameter", 0, Q("6.5 mm")))
sketch24.addConstraint(Sketcher.Constraint("DistanceX", -1, 1, 0, 3, Q("152 mm")))
sketch24.addConstraint(Sketcher.Constraint("DistanceY", 0, 3, -1, 1, Q("17.5 mm")))
pocket21 = doc.addObject("PartDesign::Pocket", "Pocket020")
body.addObject(pocket21)
pocket21.Profile = sketch24
pocket21.Length = 3
pocket21.Reversed = True

# Sketch on XZ plane
sketch25 = doc.addObject("Sketcher::SketchObject", "Sketch024")
body.addObject(sketch25)
sketch25.AttachmentSupport = (doc.XZ_Plane, [""])
sketch25.MapMode = "FlatFace"
sketch25.AttachmentOffset = App.Placement(V(0, 0, 0.65), App.Rotation())
sketch25.addGeometry(Part.Circle(V(152, -17.5, 0), V(0, 0, 1), 3.2), False)
sketch25.addConstraint(Sketcher.Constraint("Diameter", 0, Q("6.5 mm")))
sketch25.addConstraint(Sketcher.Constraint("DistanceX", -1, 1, 0, 3, Q("152 mm")))
sketch25.addConstraint(Sketcher.Constraint("DistanceY", 0, 3, -1, 1, Q("17.5 mm")))
pocket22 = doc.addObject("PartDesign::Pocket", "Pocket021")
body.addObject(pocket22)
pocket22.Profile = sketch25
pocket22.Length = 3
pocket22.Reversed = True

doc.recompute()
